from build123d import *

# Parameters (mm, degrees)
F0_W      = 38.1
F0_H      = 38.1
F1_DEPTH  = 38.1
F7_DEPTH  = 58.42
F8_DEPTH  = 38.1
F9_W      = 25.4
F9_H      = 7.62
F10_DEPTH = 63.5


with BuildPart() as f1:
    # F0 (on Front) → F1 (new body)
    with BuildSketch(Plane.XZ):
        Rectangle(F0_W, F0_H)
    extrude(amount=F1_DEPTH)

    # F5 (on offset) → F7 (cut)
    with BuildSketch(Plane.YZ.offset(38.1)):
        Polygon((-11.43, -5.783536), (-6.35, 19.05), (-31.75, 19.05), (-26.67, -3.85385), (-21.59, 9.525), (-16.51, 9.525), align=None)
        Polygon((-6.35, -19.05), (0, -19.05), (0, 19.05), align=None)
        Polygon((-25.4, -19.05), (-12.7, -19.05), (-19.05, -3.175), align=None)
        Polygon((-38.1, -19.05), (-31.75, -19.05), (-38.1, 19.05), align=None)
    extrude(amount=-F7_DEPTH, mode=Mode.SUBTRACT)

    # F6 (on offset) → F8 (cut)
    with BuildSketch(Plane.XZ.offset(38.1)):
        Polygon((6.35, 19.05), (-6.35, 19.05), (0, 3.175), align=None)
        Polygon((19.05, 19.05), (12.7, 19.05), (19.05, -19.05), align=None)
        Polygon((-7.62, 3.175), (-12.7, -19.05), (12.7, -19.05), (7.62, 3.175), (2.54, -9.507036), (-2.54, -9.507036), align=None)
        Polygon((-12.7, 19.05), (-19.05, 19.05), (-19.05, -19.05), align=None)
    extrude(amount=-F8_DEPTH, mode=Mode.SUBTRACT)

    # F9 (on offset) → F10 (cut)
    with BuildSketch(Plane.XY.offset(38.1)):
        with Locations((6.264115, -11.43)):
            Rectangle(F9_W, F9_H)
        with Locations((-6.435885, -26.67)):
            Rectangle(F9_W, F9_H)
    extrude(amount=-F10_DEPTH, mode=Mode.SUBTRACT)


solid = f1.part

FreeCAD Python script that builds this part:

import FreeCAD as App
import Part
import Sketcher
Q = App.Units.Quantity

doc = App.newDocument("Part")
params = doc.addObject("Spreadsheet::Sheet", "Params")
for row, (alias, value) in enumerate([
    ("sketch1_width", "1.5 in"),
    ("pad1_length", "1.5 in"),
    ("sketch2_width", "1 in"),
    ("sketch2_width2", "0.2 in"),
    ("sketch2_width3", "0.5 in"),
    ("sketch2_height", "1.5 in"),
    ("pocket1_length", "2.3 in"),
    ("sketch3_width", "1 in"),
    ("sketch3_width2", "0.5 in"),
    ("sketch3_width3", "0.2 in"),
    ("sketch3_height", "1.5 in"),
    ("pocket2_length", "1.5 in"),
    ("sketch4_width", "1 in"),
    ("sketch4_height", "0.3 in"),
    ("pocket3_length", "2.5 in"),
], start=1):
    params.set(f"A{row}", alias)
    params.set(f"B{row}", "=" + value)
    params.setAlias(f"B{row}", alias)

body = doc.addObject("PartDesign::Body", "Body")

# Sketch on XZ plane
sketch1 = body.newObject("Sketcher::SketchObject", "Sketch")
sketch1.AttachmentSupport = (doc.getObject("XZ_Plane"), [""])
sketch1.MapMode = "FlatFace"
sketch1.addGeometry(Part.LineSegment(App.Vector(-19, 19, 0), App.Vector(-19, -19, 0)), False)
sketch1.addGeometry(Part.LineSegment(App.Vector(-19, -19, 0), App.Vector(19, -19, 0)), False)
sketch1.addGeometry(Part.LineSegment(App.Vector(19, -19, 0), App.Vector(19, 19, 0)), False)
sketch1.addGeometry(Part.LineSegment(App.Vector(19, 19, 0), App.Vector(-19, 19, 0)), False)
sketch1.addConstraint(Sketcher.Constraint("Coincident", 0, 2, 1, 1))
sketch1.addConstraint(Sketcher.Constraint("Coincident", 1, 2, 2, 1))
sketch1.addConstraint(Sketcher.Constraint("Coincident", 2, 2, 3, 1))
sketch1.addConstraint(Sketcher.Constraint("Coincident", 3, 2, 0, 1))
sketch1.addConstraint(Sketcher.Constraint("Vertical", 0))
sketch1.addConstraint(Sketcher.Constraint("Horizontal", 1))
sketch1.addConstraint(Sketcher.Constraint("Vertical", 2))
sketch1.addConstraint(Sketcher.Constraint("Horizontal", 3))
sketch1.addConstraint(Sketcher.Constraint("Symmetric", 0, 2, 2, 2, -1, 1))
sketch1.addConstraint(Sketcher.Constraint("Equal", 3, 0))
sketch1.addConstraint(Sketcher.Constraint("DistanceX", 1, 1, 1, 2, Q("1.5 in")))
sketch1.setExpression("Constraints[10]", "Params.sketch1_width")
pad1 = body.newObject("PartDesign::Pad", "Pad")
pad1.Profile = sketch1
pad1.setExpression("Length", "Params.pad1_length")

# Sketch on YZ plane
sketch2 = body.newObject("Sketcher::SketchObject", "Sketch001")
sketch2.AttachmentSupport = (doc.getObject("YZ_Plane"), [""])
sketch2.MapMode = "FlatFace"
sketch2.AttachmentOffset = App.Placement(App.Vector(0, 0, 1.5 * 25.4), App.Rotation())
sketch2.addGeometry(Part.LineSegment(App.Vector(-11, -6, 0), App.Vector(-6, 19, 0)), False)
sketch2.addGeometry(Part.LineSegment(App.Vector(-6, 19, 0), App.Vector(-32, 19, 0)), False)
sketch2.addGeometry(Part.LineSegment(App.Vector(-32, 19, 0), App.Vector(-27, -4, 0)), False)
sketch2.addGeometry(Part.LineSegment(App.Vector(-27, -4, 0), App.Vector(-22, 10, 0)), False)
sketch2.addGeometry(Part.LineSegment(App.Vector(-22, 10, 0), App.Vector(-17, 10, 0)), False)
sketch2.addGeometry(Part.LineSegment(App.Vector(-17, 10, 0), App.Vector(-11, -6, 0)), False)
sketch2.addGeometry(Part.LineSegment(App.Vector(-6, -19, 0), App.Vector(0, -19, 0)), False)
sketch2.addGeometry(Part.LineSegment(App.Vector(0, -19, 0), App.Vector(0, 19, 0)), False)
sketch2.addGeometry(Part.LineSegment(App.Vector(0, 19, 0), App.Vector(-6, -19, 0)), False)
sketch2.addGeometry(Part.LineSegment(App.Vector(-25, -19, 0), App.Vector(-13, -19, 0)), False)
sketch2.addGeometry(Part.LineSegment(App.Vector(-13, -19, 0), App.Vector(-19, -3, 0)), False)
sketch2.addGeometry(Part.LineSegment(App.Vector(-19, -3, 0), App.Vector(-25, -19, 0)), False)
sketch2.addGeometry(Part.LineSegment(App.Vector(-38, -19, 0), App.Vector(-32, -19, 0)), False)
sketch2.addGeometry(Part.LineSegment(App.Vector(-32, -19, 0), App.Vector(-38, 19, 0)), False)
sketch2.addGeometry(Part.LineSegment(App.Vector(-38, 19, 0), App.Vector(-38, -19, 0)), False)
sketch2.addConstraint(Sketcher.Constraint("Coincident", 0, 2, 1, 1))
sketch2.addConstraint(Sketcher.Constraint("Coincident", 1, 2, 2, 1))
sketch2.addConstraint(Sketcher.Constraint("Coincident", 2, 2, 3, 1))
sketch2.addConstraint(Sketcher.Constraint("Coincident", 3, 2, 4, 1))
sketch2.addConstraint(Sketcher.Constraint("Coincident", 4, 2, 5, 1))
sketch2.addConstraint(Sketcher.Constraint("Coincident", 5, 2, 0, 1))
sketch2.addConstraint(Sketcher.Constraint("Coincident", 6, 2, 7, 1))
sketch2.addConstraint(Sketcher.Constraint("Coincident", 7, 2, 8, 1))
sketch2.addConstraint(Sketcher.Constraint("Coincident", 8, 2, 6, 1))
sketch2.addConstraint(Sketcher.Constraint("Coincident", 9, 2, 10, 1))
sketch2.addConstraint(Sketcher.Constraint("Coincident", 10, 2, 11, 1))
sketch2.addConstraint(Sketcher.Constraint("Coincident", 11, 2, 9, 1))
sketch2.addConstraint(Sketcher.Constraint("Coincident", 12, 2, 13, 1))
sketch2.addConstraint(Sketcher.Constraint("Coincident", 13, 2, 14, 1))
sketch2.addConstraint(Sketcher.Constraint("Coincident", 14, 2, 12, 1))
sketch2.addConstraint(Sketcher.Constraint("Horizontal", 1))
sketch2.addConstraint(Sketcher.Constraint("Horizontal", 4))
sketch2.addConstraint(Sketcher.Constraint("Horizontal", 6))
sketch2.addConstraint(Sketcher.Constraint("Vertical", 7))
sketch2.addConstraint(Sketcher.Constraint("Horizontal", 9))
sketch2.addConstraint(Sketcher.Constraint("Horizontal", 12))
sketch2.addConstraint(Sketcher.Constraint("Vertical", 14))
sketch2.addConstraint(Sketcher.Constraint("Symmetric", 6, 2, 7, 2, -1, 1))
sketch2.addConstraint(Sketcher.Constraint("Symmetric", 0, 2, 8, 2, -1))
sketch2.addConstraint(Sketcher.Constraint("Symmetric", 1, 2, 12, 2, -1))
sketch2.addConstraint(Sketcher.Constraint("Horizontal", 8, 2, 9, 2))
sketch2.addConstraint(Sketcher.Constraint("Horizontal", 7, 2, 13, 2))
sketch2.addConstraint(Sketcher.Constraint("Equal", 6, 12))
sketch2.addConstraint(Sketcher.Constraint("Equal", 10, 11))
sketch2.addConstraint(Sketcher.Constraint("DistanceX", 1, 2, 1, 1, Q("1 in")))
sketch2.addConstraint(Sketcher.Constraint("DistanceX", 4, 1, 4, 2, Q("0.2 in")))
sketch2.addConstraint(Sketcher.Constraint("DistanceX", 9, 1, 9, 2, Q("0.5 in")))
sketch2.addConstraint(Sketcher.Constraint("DistanceY", 7, 1, 7, 2, Q("1.5 in")))
sketch2.addConstraint(Sketcher.Constraint("DistanceX", 11, 2, -1, 1, Q("1 in")))
sketch2.addConstraint(Sketcher.Constraint("DistanceX", 14, 2, 9, 2, Q("1 in")))
sketch2.addConstraint(Sketcher.Constraint("DistanceX", 1, 2, 2, 2, Q("0.2 in")))
sketch2.addConstraint(Sketcher.Constraint("DistanceX", 1, 2, 3, 2, Q("0.4 in")))
sketch2.addConstraint(Sketcher.Constraint("DistanceX", 2, 2, 5, 2, Q("0.6 in")))
sketch2.addConstraint(Sketcher.Constraint("DistanceY", 10, 2, 3, 2, Q("0.5 in")))
sketch2.addConstraint(Sketcher.Constraint("DistanceY", -1, 1, 3, 2, Q("0.375 in")))
sketch2.addConstraint(Sketcher.Constraint("Distance", 0, Q("25.347799 mm")))
sketch2.addConstraint(Sketcher.Constraint("Distance", 2, Q("23.460451 mm")))
sketch2.setExpression("Constraints[29]", "Params.sketch2_width")
sketch2.setExpression("Constraints[30]", "Params.sketch2_width2")
sketch2.setExpression("Constraints[31]", "Params.sketch2_width3")
sketch2.setExpression("Constraints[32]", "Params.sketch2_height")
pocket1 = body.newObject("PartDesign::Pocket", "Pocket")
pocket1.Profile = sketch2
pocket1.setExpression("Length", "Params.pocket1_length")

# Sketch on XZ plane
sketch3 = body.newObject("Sketcher::SketchObject", "Sketch002")
sketch3.AttachmentSupport = (doc.getObject("XZ_Plane"), [""])
sketch3.MapMode = "FlatFace"
sketch3.AttachmentOffset = App.Placement(App.Vector(0, 0, 1.5 * 25.4), App.Rotation())
sketch3.addGeometry(Part.LineSegment(App.Vector(6, 19, 0), App.Vector(-6, 19, 0)), False)
sketch3.addGeometry(Part.LineSegment(App.Vector(-6, 19, 0), App.Vector(0, 3, 0)), False)
sketch3.addGeometry(Part.LineSegment(App.Vector(0, 3, 0), App.Vector(6, 19, 0)), False)
sketch3.addGeometry(Part.LineSegment(App.Vector(19, 19, 0), App.Vector(13, 19, 0)), False)
sketch3.addGeometry(Part.LineSegment(App.Vector(13, 19, 0), App.Vector(19, -19, 0)), False)
sketch3.addGeometry(Part.LineSegment(App.Vector(19, -19, 0), App.Vector(19, 19, 0)), False)
sketch3.addGeometry(Part.LineSegment(App.Vector(-8, 3, 0), App.Vector(-13, -19, 0)), False)
sketch3.addGeometry(Part.LineSegment(App.Vector(-13, -19, 0), App.Vector(13, -19, 0)), False)
sketch3.addGeometry(Part.LineSegment(App.Vector(13, -19, 0), App.Vector(8, 3, 0)), False)
sketch3.addGeometry(Part.LineSegment(App.Vector(8, 3, 0), App.Vector(3, -10, 0)), False)
sketch3.addGeometry(Part.LineSegment(App.Vector(3, -10, 0), App.Vector(-3, -10, 0)), False)
sketch3.addGeometry(Part.LineSegment(App.Vector(-3, -10, 0), App.Vector(-8, 3, 0)), False)
sketch3.addGeometry(Part.LineSegment(App.Vector(-13, 19, 0), App.Vector(-19, 19, 0)), False)
sketch3.addGeometry(Part.LineSegment(App.Vector(-19, 19, 0), App.Vector(-19, -19, 0)), False)
sketch3.addGeometry(Part.LineSegment(App.Vector(-19, -19, 0), App.Vector(-13, 19, 0)), False)
sketch3.addConstraint(Sketcher.Constraint("Coincident", 0, 2, 1, 1))
sketch3.addConstraint(Sketcher.Constraint("Coincident", 1, 2, 2, 1))
sketch3.addConstraint(Sketcher.Constraint("Coincident", 2, 2, 0, 1))
sketch3.addConstraint(Sketcher.Constraint("Coincident", 3, 2, 4, 1))
sketch3.addConstraint(Sketcher.Constraint("Coincident", 4, 2, 5, 1))
sketch3.addConstraint(Sketcher.Constraint("Coincident", 5, 2, 3, 1))
sketch3.addConstraint(Sketcher.Constraint("Coincident", 6, 2, 7, 1))
sketch3.addConstraint(Sketcher.Constraint("Coincident", 7, 2, 8, 1))
sketch3.addConstraint(Sketcher.Constraint("Coincident", 8, 2, 9, 1))
sketch3.addConstraint(Sketcher.Constraint("Coincident", 9, 2, 10, 1))
sketch3.addConstraint(Sketcher.Constraint("Coincident", 10, 2, 11, 1))
sketch3.addConstraint(Sketcher.Constraint("Coincident", 11, 2, 6, 1))
sketch3.addConstraint(Sketcher.Constraint("Coincident", 12, 2, 13, 1))
sketch3.addConstraint(Sketcher.Constraint("Coincident", 13, 2, 14, 1))
sketch3.addConstraint(Sketcher.Constraint("Coincident", 14, 2, 12, 1))
sketch3.addConstraint(Sketcher.Constraint("Horizontal", 0))
sketch3.addConstraint(Sketcher.Constraint("Horizontal", 3))
sketch3.addConstraint(Sketcher.Constraint("Vertical", 5))
sketch3.addConstraint(Sketcher.Constraint("Horizontal", 7))
sketch3.addConstraint(Sketcher.Constraint("Horizontal", 10))
sketch3.addConstraint(Sketcher.Constraint("Horizontal", 12))
sketch3.addConstraint(Sketcher.Constraint("Vertical", 13))
sketch3.addConstraint(Sketcher.Constraint("Symmetric", 3, 2, 6, 2, -1, 1))
sketch3.addConstraint(Sketcher.Constraint("Symmetric", 4, 2, 12, 2, -1, 1))
sketch3.addConstraint(Sketcher.Constraint("Symmetric", 7, 2, 14, 2, -1, 1))
sketch3.addConstraint(Sketcher.Constraint("Symmetric", 8, 2, 11, 2, -2))
sketch3.addConstraint(Sketcher.Constraint("PointOnObject", 1, 2, -2))
sketch3.addConstraint(Sketcher.Constraint("Horizontal", 2, 2, 3, 2))
sketch3.addConstraint(Sketcher.Constraint("Horizontal", 1, 2, 8, 2))
sketch3.addConstraint(Sketcher.Constraint("Horizontal", 7, 2, 13, 2))
sketch3.addConstraint(Sketcher.Constraint("Vertical", 3, 2, 7, 2))
sketch3.addConstraint(Sketcher.Constraint("Equal", 1, 2))
sketch3.addConstraint(Sketcher.Constraint("Equal", 9, 11))
sketch3.addConstraint(Sketcher.Constraint("DistanceX", 7, 1, 7, 2, Q("1 in")))
sketch3.addConstraint(Sketcher.Constraint("DistanceX", 0, 2, 0, 1, Q("0.5 in")))
sketch3.addConstraint(Sketcher.Constraint("DistanceX", 10, 2, 10, 1, Q("0.2 in")))
sketch3.addConstraint(Sketcher.Constraint("DistanceY", 5, 1, 5, 2, Q("1.5 in")))
sketch3.addConstraint(Sketcher.Constraint("DistanceX", 0, 2, 4, 2, Q("1 in")))
sketch3.addConstraint(Sketcher.Constraint("DistanceX", -1, 1, 8, 2, Q("0.3 in")))
sketch3.addConstraint(Sketcher.Constraint("DistanceY", -1, 1, 1, 2, Q("0.125 in")))
sketch3.addConstraint(Sketcher.Constraint("Distance", 9, Q("13.661641 mm")))
sketch3.setExpression("Constraints[33]", "Params.sketch3_width")
sketch3.setExpression("Constraints[34]", "Params.sketch3_width2")
sketch3.setExpression("Constraints[35]", "Params.sketch3_width3")
sketch3.setExpression("Constraints[36]", "Params.sketch3_height")
pocket2 = body.newObject("PartDesign::Pocket", "Pocket001")
pocket2.Profile = sketch3
pocket2.setExpression("Length", "Params.pocket2_length")

# Sketch on XY plane
sketch4 = body.newObject("Sketcher::SketchObject", "Sketch003")
sketch4.AttachmentSupport = (doc.getObject("XY_Plane"), [""])
sketch4.MapMode = "FlatFace"
sketch4.AttachmentOffset = App.Placement(App.Vector(0, 0, 1.5 * 25.4), App.Rotation())
sketch4.addGeometry(Part.LineSegment(App.Vector(-6, -8, 0), App.Vector(-6, -15, 0)), False)
sketch4.addGeometry(Part.LineSegment(App.Vector(-6, -15, 0), App.Vector(19, -15, 0)), False)
sketch4.addGeometry(Part.LineSegment(App.Vector(19, -15, 0), App.Vector(19, -8, 0)), False)
sketch4.addGeometry(Part.LineSegment(App.Vector(19, -8, 0), App.Vector(-6, -8, 0)), False)
sketch4.addGeometry(Part.LineSegment(App.Vector(-19, -23, 0), App.Vector(-19, -30, 0)), False)
sketch4.addGeometry(Part.LineSegment(App.Vector(-19, -30, 0), App.Vector(6, -30, 0)), False)
sketch4.addGeometry(Part.LineSegment(App.Vector(6, -30, 0), App.Vector(6, -23, 0)), False)
sketch4.addGeometry(Part.LineSegment(App.Vector(6, -23, 0), App.Vector(-19, -23, 0)), False)
sketch4.addConstraint(Sketcher.Constraint("Coincident", 0, 2, 1, 1))
sketch4.addConstraint(Sketcher.Constraint("Coincident", 1, 2, 2, 1))
sketch4.addConstraint(Sketcher.Constraint("Coincident", 2, 2, 3, 1))
sketch4.addConstraint(Sketcher.Constraint("Coincident", 3, 2, 0, 1))
sketch4.addConstraint(Sketcher.Constraint("Coincident", 4, 2, 5, 1))
sketch4.addConstraint(Sketcher.Constraint("Coincident", 5, 2, 6, 1))
sketch4.addConstraint(Sketcher.Constraint("Coincident", 6, 2, 7, 1))
sketch4.addConstraint(Sketcher.Constraint("Coincident", 7, 2, 4, 1))
sketch4.addConstraint(Sketcher.Constraint("Vertical", 0))
sketch4.addConstraint(Sketcher.Constraint("Horizontal", 1))
sketch4.addConstraint(Sketcher.Constraint("Vertical", 2))
sketch4.addConstraint(Sketcher.Constraint("Horizontal", 3))
sketch4.addConstraint(Sketcher.Constraint("Vertical", 4))
sketch4.addConstraint(Sketcher.Constraint("Horizontal", 5))
sketch4.addConstraint(Sketcher.Constraint("Vertical", 6))
sketch4.addConstraint(Sketcher.Constraint("Horizontal", 7))
sketch4.addConstraint(Sketcher.Constraint("Equal", 3, 5))
sketch4.addConstraint(Sketcher.Constraint("Equal", 2, 4))
sketch4.addConstraint(Sketcher.Constraint("DistanceX", 1, 1, 1, 2, Q("1 in")))
sketch4.addConstraint(Sketcher.Constraint("DistanceY", 0, 2, 0, 1, Q("0.3 in")))
sketch4.addConstraint(Sketcher.Constraint("DistanceY", 0, 2, -1, 1, Q("0.6 in")))
sketch4.addConstraint(Sketcher.Constraint("DistanceY", 4, 2, -1, 1, Q("1.2 in")))
sketch4.addConstraint(Sketcher.Constraint("DistanceX", 4, 2, 0, 2, Q("0.5 in")))
sketch4.addConstraint(Sketcher.Constraint("DistanceX", 0, 2, -1, 1, Q("6.435885 mm")))
sketch4.setExpression("Constraints[18]", "Params.sketch4_width")
sketch4.setExpression("Constraints[19]", "Params.sketch4_height")
pocket3 = body.newObject("PartDesign::Pocket", "Pocket002")
pocket3.Profile = sketch4
pocket3.setExpression("Length", "Params.pocket3_length")

doc.recompute()
